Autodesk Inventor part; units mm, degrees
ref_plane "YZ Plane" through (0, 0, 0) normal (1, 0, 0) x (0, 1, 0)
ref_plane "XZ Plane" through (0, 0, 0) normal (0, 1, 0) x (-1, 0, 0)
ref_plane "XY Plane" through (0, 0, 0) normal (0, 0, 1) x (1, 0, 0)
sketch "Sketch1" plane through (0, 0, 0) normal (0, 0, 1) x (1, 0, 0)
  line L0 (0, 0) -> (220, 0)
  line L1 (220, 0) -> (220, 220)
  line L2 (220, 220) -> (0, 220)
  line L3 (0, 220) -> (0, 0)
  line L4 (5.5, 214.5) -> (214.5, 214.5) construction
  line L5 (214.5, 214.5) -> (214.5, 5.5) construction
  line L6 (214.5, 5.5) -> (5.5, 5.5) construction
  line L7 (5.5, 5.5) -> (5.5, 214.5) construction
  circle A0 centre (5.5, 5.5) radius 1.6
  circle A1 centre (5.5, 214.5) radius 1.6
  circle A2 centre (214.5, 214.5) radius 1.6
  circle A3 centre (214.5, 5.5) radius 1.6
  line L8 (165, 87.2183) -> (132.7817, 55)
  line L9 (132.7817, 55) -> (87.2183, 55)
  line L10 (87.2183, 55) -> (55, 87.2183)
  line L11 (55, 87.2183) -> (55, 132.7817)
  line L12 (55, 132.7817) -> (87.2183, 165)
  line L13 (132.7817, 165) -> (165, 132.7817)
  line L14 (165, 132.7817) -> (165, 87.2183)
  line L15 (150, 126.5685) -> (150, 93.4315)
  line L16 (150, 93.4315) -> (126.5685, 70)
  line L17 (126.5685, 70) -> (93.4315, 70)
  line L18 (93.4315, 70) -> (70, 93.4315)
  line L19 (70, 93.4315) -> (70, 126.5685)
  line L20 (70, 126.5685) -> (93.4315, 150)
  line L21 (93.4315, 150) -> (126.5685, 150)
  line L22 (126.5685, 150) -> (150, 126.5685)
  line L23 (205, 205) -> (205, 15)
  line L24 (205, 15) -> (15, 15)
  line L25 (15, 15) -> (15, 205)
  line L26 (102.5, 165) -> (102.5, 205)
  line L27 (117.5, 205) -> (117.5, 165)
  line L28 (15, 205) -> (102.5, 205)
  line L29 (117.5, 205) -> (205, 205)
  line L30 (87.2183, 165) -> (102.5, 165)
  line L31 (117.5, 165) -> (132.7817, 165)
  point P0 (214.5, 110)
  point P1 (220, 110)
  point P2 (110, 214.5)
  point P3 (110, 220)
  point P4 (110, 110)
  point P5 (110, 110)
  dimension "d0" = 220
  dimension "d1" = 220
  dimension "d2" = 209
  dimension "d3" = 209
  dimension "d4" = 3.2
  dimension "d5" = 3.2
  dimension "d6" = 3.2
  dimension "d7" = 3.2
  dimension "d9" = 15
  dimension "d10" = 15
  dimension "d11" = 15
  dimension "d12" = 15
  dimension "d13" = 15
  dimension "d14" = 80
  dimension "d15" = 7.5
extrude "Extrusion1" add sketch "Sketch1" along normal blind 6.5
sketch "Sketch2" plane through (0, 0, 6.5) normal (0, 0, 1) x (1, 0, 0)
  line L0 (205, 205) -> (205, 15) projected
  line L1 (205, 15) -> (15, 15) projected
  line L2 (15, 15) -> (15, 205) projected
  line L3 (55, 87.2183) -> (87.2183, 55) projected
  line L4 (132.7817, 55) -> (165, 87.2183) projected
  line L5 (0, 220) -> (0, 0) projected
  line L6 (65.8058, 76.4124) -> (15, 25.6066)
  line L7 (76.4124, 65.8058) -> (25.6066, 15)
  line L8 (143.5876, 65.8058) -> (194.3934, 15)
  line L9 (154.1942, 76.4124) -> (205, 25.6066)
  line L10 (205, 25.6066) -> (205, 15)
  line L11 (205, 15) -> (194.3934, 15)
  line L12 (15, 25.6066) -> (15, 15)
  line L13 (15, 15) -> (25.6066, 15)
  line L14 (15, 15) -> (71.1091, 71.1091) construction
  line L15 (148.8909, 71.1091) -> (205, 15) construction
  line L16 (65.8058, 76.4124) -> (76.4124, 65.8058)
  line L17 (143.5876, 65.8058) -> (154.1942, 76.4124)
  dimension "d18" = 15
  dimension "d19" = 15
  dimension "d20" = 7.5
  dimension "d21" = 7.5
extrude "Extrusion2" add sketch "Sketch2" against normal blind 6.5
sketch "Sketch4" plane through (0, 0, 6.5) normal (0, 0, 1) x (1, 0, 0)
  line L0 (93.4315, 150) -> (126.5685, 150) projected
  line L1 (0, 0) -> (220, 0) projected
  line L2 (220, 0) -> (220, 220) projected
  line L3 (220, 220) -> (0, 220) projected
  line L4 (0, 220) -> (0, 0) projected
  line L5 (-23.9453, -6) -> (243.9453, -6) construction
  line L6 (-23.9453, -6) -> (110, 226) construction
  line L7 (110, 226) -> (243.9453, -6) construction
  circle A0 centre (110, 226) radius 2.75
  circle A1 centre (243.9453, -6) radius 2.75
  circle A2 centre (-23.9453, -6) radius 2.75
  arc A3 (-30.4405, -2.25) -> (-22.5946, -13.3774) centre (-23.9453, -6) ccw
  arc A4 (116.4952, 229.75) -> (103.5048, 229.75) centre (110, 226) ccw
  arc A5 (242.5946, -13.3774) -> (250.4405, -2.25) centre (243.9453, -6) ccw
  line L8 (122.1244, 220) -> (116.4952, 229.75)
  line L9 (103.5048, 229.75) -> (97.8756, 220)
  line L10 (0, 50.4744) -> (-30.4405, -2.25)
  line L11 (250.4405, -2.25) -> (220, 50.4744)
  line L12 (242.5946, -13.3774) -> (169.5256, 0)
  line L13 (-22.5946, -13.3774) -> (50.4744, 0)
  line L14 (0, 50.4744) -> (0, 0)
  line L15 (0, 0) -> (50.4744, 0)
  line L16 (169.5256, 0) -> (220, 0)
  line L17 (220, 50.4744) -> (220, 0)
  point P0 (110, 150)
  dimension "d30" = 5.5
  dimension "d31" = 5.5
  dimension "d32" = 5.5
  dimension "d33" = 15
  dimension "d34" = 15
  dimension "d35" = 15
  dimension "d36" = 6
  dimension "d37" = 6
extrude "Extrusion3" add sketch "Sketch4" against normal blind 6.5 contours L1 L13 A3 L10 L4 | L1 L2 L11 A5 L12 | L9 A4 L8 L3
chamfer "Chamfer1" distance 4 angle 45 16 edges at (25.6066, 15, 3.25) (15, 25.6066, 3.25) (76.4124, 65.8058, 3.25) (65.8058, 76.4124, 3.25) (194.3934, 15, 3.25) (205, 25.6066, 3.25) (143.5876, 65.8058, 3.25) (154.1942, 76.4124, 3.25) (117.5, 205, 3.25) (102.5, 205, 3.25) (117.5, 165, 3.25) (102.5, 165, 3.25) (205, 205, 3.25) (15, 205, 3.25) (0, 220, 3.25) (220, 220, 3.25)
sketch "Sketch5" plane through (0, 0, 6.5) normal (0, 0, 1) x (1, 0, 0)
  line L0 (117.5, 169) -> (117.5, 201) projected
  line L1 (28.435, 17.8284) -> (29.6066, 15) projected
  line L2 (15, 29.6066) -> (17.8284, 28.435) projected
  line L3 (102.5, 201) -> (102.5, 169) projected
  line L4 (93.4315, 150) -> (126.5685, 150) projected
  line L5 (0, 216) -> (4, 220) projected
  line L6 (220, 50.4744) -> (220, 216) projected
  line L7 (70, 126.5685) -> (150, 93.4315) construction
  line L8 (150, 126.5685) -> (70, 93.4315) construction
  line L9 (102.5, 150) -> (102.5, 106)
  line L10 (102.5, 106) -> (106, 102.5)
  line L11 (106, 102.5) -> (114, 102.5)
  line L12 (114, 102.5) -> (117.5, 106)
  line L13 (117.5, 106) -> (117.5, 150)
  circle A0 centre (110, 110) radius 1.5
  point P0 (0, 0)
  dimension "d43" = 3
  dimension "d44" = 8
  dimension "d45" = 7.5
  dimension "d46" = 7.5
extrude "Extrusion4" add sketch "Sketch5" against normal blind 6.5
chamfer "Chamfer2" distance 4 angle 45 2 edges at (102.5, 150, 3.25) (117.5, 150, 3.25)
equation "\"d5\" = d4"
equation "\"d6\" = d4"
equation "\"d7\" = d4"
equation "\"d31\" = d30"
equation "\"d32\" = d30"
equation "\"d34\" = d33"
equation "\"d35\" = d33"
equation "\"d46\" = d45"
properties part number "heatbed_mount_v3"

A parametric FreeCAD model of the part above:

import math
import FreeCAD as App
import Part
import Sketcher
from FreeCAD import Vector
Q = App.Units.Quantity


def edges_at(feature, points):
    """Names of the edges that pass closest to the given points."""
    edges = feature.Shape.Edges
    near = lambda p: min(range(len(edges)), key=lambda i: edges[i].distToShape(Part.Vertex(*p))[0])
    return sorted({f"Edge{near(p) + 1}" for p in points})


def add_polygon(sketch, points):
    """Adds a closed chain of lines whose ends are joined by coincident constraints."""
    first, n = sketch.GeometryCount, len(points)
    for a, b in zip(points, points[1:] + points[:1]):
        sketch.addGeometry(Part.LineSegment(App.Vector(*a, 0), App.Vector(*b, 0)), False)
    for i in range(n):
        sketch.addConstraint(Sketcher.Constraint("Coincident", first + i, 2, first + (i + 1) % n, 1))

doc = App.newDocument("Part")
params = doc.addObject("Spreadsheet::Sheet", "Params")
for row, (alias, value) in enumerate([
    ("sketch1_diameter", "3.2 mm"),
    ("sketch1_width", "220 mm"),
    ("sketch1_height", "40 mm"),
    ("pad1_length", "6.5 mm"),
    ("sketch2_length", "15 mm"),
    ("pad2_length", "6.5 mm"),
    ("sketch3_diameter", "5.5 mm"),
    ("sketch3_radius", "7.5 mm"),
    ("pad3_length", "6.5 mm"),
    ("chamfer_size", "4 mm"),
    ("sketch4_diameter", "3 mm"),
    ("sketch4_width", "8 mm"),
    ("sketch4_height", "44 mm"),
    ("pad4_length", "6.5 mm"),
    ("chamfer2_size", "4 mm"),
], start=1):
    params.set(f"A{row}", alias)
    params.set(f"B{row}", "=" + value)
    params.setAlias(f"B{row}", alias)

body = doc.addObject("PartDesign::Body", "Body")

# Sketch on XY plane
sketch1 = doc.addObject("Sketcher::SketchObject", "Sketch")
body.addObject(sketch1)
sketch1.AttachmentSupport = (doc.XY_Plane, [""])
sketch1.MapMode = "FlatFace"
add_polygon(sketch1, [(0, 220), (0, 0), (220, 0), (220, 220)])  # lines 0-3
sketch1.addGeometry(Part.Circle(Vector(5.5, 5.5, 0), Vector(0, 0, 1), 1.6), False)  # 4
sketch1.addGeometry(Part.Circle(Vector(214.5, 5.5, 0), Vector(0, 0, 1), 1.6), False)  # 5
sketch1.addGeometry(Part.Circle(Vector(5.5, 214.5, 0), Vector(0, 0, 1), 1.6), False)  # 6
add_polygon(sketch1, [(126.6, 150), (150, 126.6), (150, 93.4), (126.6, 70), (93.4, 70), (70, 93.4), (70, 126.6), (93.4, 150)])  # lines 7-14
add_polygon(sketch1, [(132.8, 55), (165, 87.2), (165, 132.8), (132.8, 165), (117.5, 165), (117.5, 205), (205, 205), (205, 15), (15, 15), (15, 205), (102.5, 205), (102.5, 165), (87.2, 165), (55, 132.8), (55, 87.2), (87.2, 55)])  # lines 15-30
sketch1.addGeometry(Part.Circle(Vector(214.5, 214.5, 0), Vector(0, 0, 1), 1.6), False)  # 31
sketch1.addConstraint([
    Sketcher.Constraint("Vertical", 0),
    Sketcher.Constraint("Horizontal", 1),
    Sketcher.Constraint("Vertical", 2),
    Sketcher.Constraint("Horizontal", 3),
    Sketcher.Constraint("Vertical", 8),
    Sketcher.Constraint("Horizontal", 10),
    Sketcher.Constraint("Vertical", 12),
    Sketcher.Constraint("Horizontal", 14),
    Sketcher.Constraint("Vertical", 16),
    Sketcher.Constraint("Horizontal", 18),
    Sketcher.Constraint("Vertical", 19),
    Sketcher.Constraint("Horizontal", 20),
    Sketcher.Constraint("Vertical", 21),
    Sketcher.Constraint("Horizontal", 22),
    Sketcher.Constraint("Vertical", 23),
    Sketcher.Constraint("Horizontal", 24),
    Sketcher.Constraint("Vertical", 25),
    Sketcher.Constraint("Horizontal", 26),
    Sketcher.Constraint("Vertical", 28),
    Sketcher.Constraint("Horizontal", 30),
    Sketcher.Constraint("Coincident", 0, 2, -1, 1),
    Sketcher.Constraint("Equal", 4, 5),
    Sketcher.Constraint("Equal", 5, 6),
    Sketcher.Constraint("Equal", 6, 31),
    Sketcher.Constraint("Perpendicular", 7, 9),
    Sketcher.Constraint("Perpendicular", 9, 11),
    Sketcher.Constraint("Perpendicular", 11, 13),
    Sketcher.Constraint("Parallel", 13, 15),
    Sketcher.Constraint("Perpendicular", 15, 17),
    Sketcher.Constraint("Perpendicular", 17, 27),
    Sketcher.Constraint("Perpendicular", 27, 29),
    Sketcher.Constraint("Horizontal", 4, 3, 5, 3),
    Sketcher.Constraint("Horizontal", 6, 3, 31, 3),
    Sketcher.Constraint("Horizontal", 8, 2, 11, 2),
    Sketcher.Constraint("Horizontal", 7, 2, 12, 2),
    Sketcher.Constraint("Horizontal", 20, 2, 23, 2),
    Sketcher.Constraint("Horizontal", 18, 2, 25, 2),
    Sketcher.Constraint("Horizontal", 16, 2, 27, 2),
    Sketcher.Constraint("Horizontal", 15, 2, 28, 2),
    Sketcher.Constraint("Vertical", 4, 3, 6, 3),
    Sketcher.Constraint("Vertical", 5, 3, 31, 3),
    Sketcher.Constraint("Vertical", 10, 2, 13, 2),
    Sketcher.Constraint("Vertical", 9, 2, 14, 2),
    Sketcher.Constraint("Vertical", 26, 2, 29, 2),
    Sketcher.Constraint("Equal", 20, 24),
    Sketcher.Constraint("Equal", 18, 26),
    Sketcher.Constraint("Equal", 3, 0),
    Sketcher.Constraint("Equal", 14, 8),
    Sketcher.Constraint("Equal", 30, 16),
    Sketcher.Constraint("Equal", 22, 21),
    Sketcher.Constraint("Diameter", 4, Q("3.2 mm")),
    Sketcher.Constraint("DistanceX", 1, 1, 1, 2, Q("220 mm")),
    Sketcher.Constraint("DistanceY", -1, 1, 21, 2, Q("15 mm")),
    Sketcher.Constraint("DistanceX", -1, 1, 22, 2, Q("15 mm")),
    Sketcher.Constraint("DistanceX", 4, 3, 5, 3, Q("209 mm")),
    Sketcher.Constraint("DistanceY", 4, 3, 6, 3, Q("209 mm")),
    Sketcher.Constraint("DistanceX", 11, 2, 8, 2, Q("80 mm")),
    Sketcher.Constraint("DistanceX", 8, 2, 15, 2, Q("15 mm")),
    Sketcher.Constraint("DistanceY", 14, 2, 17, 2, Q("15 mm")),
    Sketcher.Constraint("DistanceX", 20, 2, 2, 2, Q("15 mm")),
    Sketcher.Constraint("DistanceX", 24, 2, 19, 2, Q("15 mm")),
    Sketcher.Constraint("DistanceX", 27, 2, 12, 2, Q("15 mm")),
    Sketcher.Constraint("DistanceY", 19, 1, 19, 2, Q("40 mm")),
    Sketcher.Constraint("DistanceX", -1, 1, 4, 3, Q("5.5 mm")),
    Sketcher.Constraint("DistanceY", -1, 1, 4, 3, Q("5.5 mm")),
    Sketcher.Constraint("DistanceX", 10, 2, 10, 1, Q("33.137 mm")),
    Sketcher.Constraint("DistanceX", 18, 2, 18, 1, Q("15.2817 mm")),
])
sketch1.setExpression("Constraints[78]", "Params.sketch1_diameter")
sketch1.setExpression("Constraints[79]", "Params.sketch1_width")
sketch1.setExpression("Constraints[90]", "Params.sketch1_height")
pad1 = doc.addObject("PartDesign::Pad", "Pad")
body.addObject(pad1)
pad1.Profile = sketch1
pad1.setExpression("Length", "Params.pad1_length")

# Sketch on XY plane
sketch2 = doc.addObject("Sketcher::SketchObject", "Sketch001")
body.addObject(sketch2)
sketch2.AttachmentSupport = (doc.XY_Plane, [""])
sketch2.MapMode = "FlatFace"
sketch2.AttachmentOffset = App.Placement(Vector(0, 0, 6.5), App.Rotation())
add_polygon(sketch2, [(15, 15), (26, 15), (76, 66), (66, 76), (15, 26)])  # lines 0-4
add_polygon(sketch2, [(205, 15), (205, 26), (154, 76), (144, 66), (194, 15)])  # lines 5-9
sketch2.addConstraint([
    Sketcher.Constraint("Horizontal", 0),
    Sketcher.Constraint("Vertical", 4),
    Sketcher.Constraint("Vertical", 5),
    Sketcher.Constraint("Horizontal", 9),
    Sketcher.Constraint("Perpendicular", 1, 2),
    Sketcher.Constraint("Perpendicular", 2, 3),
    Sketcher.Constraint("Perpendicular", 3, 6),
    Sketcher.Constraint("Perpendicular", 6, 7),
    Sketcher.Constraint("Perpendicular", 7, 8),
    Sketcher.Constraint("Horizontal", 3, 2, 5, 2),
    Sketcher.Constraint("Horizontal", 2, 2, 6, 2),
    Sketcher.Constraint("Horizontal", 1, 2, 7, 2),
    Sketcher.Constraint("Horizontal", 4, 2, 8, 2),
    Sketcher.Constraint("Equal", 0, 9),
    Sketcher.Constraint("Equal", 9, 4),
    Sketcher.Constraint("Distance", 2, Q("15 mm")),
    Sketcher.Constraint("DistanceY", -1, 1, 0, 2, Q("15 mm")),
    Sketcher.Constraint("DistanceX", -1, 1, 3, 2, Q("15 mm")),
    Sketcher.Constraint("DistanceX", -1, 1, 5, 2, Q("205 mm")),
    Sketcher.Constraint("DistanceX", 0, 2, 7, 2, Q("117.981 mm")),
])
sketch2.setExpression("Constraints[25]", "Params.sketch2_length")
pad2 = doc.addObject("PartDesign::Pad", "Pad001")
body.addObject(pad2)
pad2.Profile = sketch2
pad2.setExpression("Length", "Params.pad2_length")
pad2.Reversed = True

# Sketch on XY plane
sketch3 = doc.addObject("Sketcher::SketchObject", "Sketch002")
body.addObject(sketch3)
sketch3.AttachmentSupport = (doc.XY_Plane, [""])
sketch3.MapMode = "FlatFace"
sketch3.AttachmentOffset = App.Placement(Vector(0, 0, 6.5), App.Rotation())
sketch3.addGeometry([
    Part.LineSegment(Vector(50.5, 0, 0), Vector(0, 0, 0)),  # 0
    Part.LineSegment(Vector(0, 0, 0), Vector(0, 50.5, 0)),  # 1
    Part.LineSegment(Vector(0, 50.5, 0), Vector(-30.4, -2.2, 0)),  # 2
    Part.ArcOfCircle(Part.Circle(Vector(-23.9, -6, 0), Vector(0, 0, 1), 7.5), math.radians(150), math.radians(280)),  # 3
    Part.LineSegment(Vector(-22.6, -13.4, 0), Vector(50.5, 0, 0)),  # 4
    Part.Circle(Vector(-23.9, -6, 0), Vector(0, 0, 1), 2.8),  # 5
    Part.LineSegment(Vector(220, 0, 0), Vector(169.5, 0, 0)),  # 6
    Part.LineSegment(Vector(169.5, 0, 0), Vector(242.6, -13.4, 0)),  # 7
    Part.ArcOfCircle(Part.Circle(Vector(243.9, -6, 0), Vector(0, 0, 1), 7.5), math.radians(-100), math.radians(30)),  # 8
    Part.LineSegment(Vector(250.4, -2.2, 0), Vector(220, 50.5, 0)),  # 9
    Part.LineSegment(Vector(220, 50.5, 0), Vector(220, 0, 0)),  # 10
    Part.Circle(Vector(243.9, -6, 0), Vector(0, 0, 1), 2.8),  # 11
    Part.LineSegment(Vector(103.5, 229.8, 0), Vector(97.9, 220, 0)),  # 12
    Part.LineSegment(Vector(97.9, 220, 0), Vector(122.1, 220, 0)),  # 13
    Part.LineSegment(Vector(122.1, 220, 0), Vector(116.5, 229.8, 0)),  # 14
    Part.ArcOfCircle(Part.Circle(Vector(110, 226, 0), Vector(0, 0, 1), 7.5), math.radians(30), math.radians(150)),  # 15
    Part.Circle(Vector(110, 226, 0), Vector(0, 0, 1), 2.8),  # 16
], False)
sketch3.addConstraint([
    Sketcher.Constraint("Coincident", 0, 2, 1, 1),
    Sketcher.Constraint("Coincident", 1, 2, 2, 1),
    Sketcher.Constraint("Tangent", 2, 2, 3, 1),
    Sketcher.Constraint("Tangent", 3, 2, 4, 1),
    Sketcher.Constraint("Coincident", 4, 2, 0, 1),
    Sketcher.Constraint("Coincident", 6, 2, 7, 1),
    Sketcher.Constraint("Tangent", 7, 2, 8, 1),
    Sketcher.Constraint("Tangent", 8, 2, 9, 1),
    Sketcher.Constraint("Coincident", 9, 2, 10, 1),
    Sketcher.Constraint("Coincident", 10, 2, 6, 1),
    Sketcher.Constraint("Coincident", 12, 2, 13, 1),
    Sketcher.Constraint("Coincident", 13, 2, 14, 1),
    Sketcher.Constraint("Tangent", 14, 2, 15, 1),
    Sketcher.Constraint("Tangent", 15, 2, 12, 1),
    Sketcher.Constraint("Horizontal", 0),
    Sketcher.Constraint("Vertical", 1),
    Sketcher.Constraint("Horizontal", 6),
    Sketcher.Constraint("Vertical", 10),
    Sketcher.Constraint("Horizontal", 13),
    Sketcher.Constraint("Coincident", 0, 2, -1, 1),
    Sketcher.Constraint("Coincident", 5, 3, 3, 3),
    Sketcher.Constraint("Coincident", 11, 3, 8, 3),
    Sketcher.Constraint("Coincident", 16, 3, 15, 3),
    Sketcher.Constraint("Equal", 3, 8),
    Sketcher.Constraint("Equal", 5, 11),
    Sketcher.Constraint("Equal", 8, 15),
    Sketcher.Constraint("Equal", 11, 16),
    Sketcher.Constraint("PointOnObject", 6, 2, -1),
    Sketcher.Constraint("Parallel", 2, 12),
    Sketcher.Constraint("Parallel", 9, 14),
    Sketcher.Constraint("Horizontal", 5, 3, 8, 3),
    Sketcher.Constraint("Horizontal", 2, 2, 8, 2),
    Sketcher.Constraint("Horizontal", 1, 2, 9, 2),
    Sketcher.Constraint("Equal", 0, 6),
    Sketcher.Constraint("Equal", 6, 1),
    Sketcher.Constraint("Diameter", 5, Q("5.5 mm")),
    Sketcher.Constraint("Radius", 3, Q("7.5 mm")),
    Sketcher.Constraint("DistanceY", 3, 3, -1, 1, Q("6 mm")),
    Sketcher.Constraint("DistanceY", 12, 2, 15, 3, Q("6 mm")),
    Sketcher.Constraint("Angle", 2, Q("-120 deg")),
    Sketcher.Constraint("DistanceX", -1, 1, 15, 3, Q("110 mm")),
    Sketcher.Constraint("DistanceY", -1, 1, 15, 3, Q("226 mm")),
    Sketcher.Constraint("DistanceX", -1, 1, 9, 2, Q("220 mm")),
    Sketcher.Constraint("Distance", 2, Q("60.881 mm")),
])
sketch3.setExpression("Constraints[35]", "Params.sketch3_diameter")
sketch3.setExpression("Constraints[36]", "Params.sketch3_radius")
pad3 = doc.addObject("PartDesign::Pad", "Pad002")
body.addObject(pad3)
pad3.Profile = sketch3
pad3.setExpression("Length", "Params.pad3_length")
pad3.Reversed = True
doc.recompute()

chamfer = doc.addObject("PartDesign::Chamfer", "Chamfer")
body.addObject(chamfer)
chamfer.Base = (pad3, edges_at(pad3, [
    (25.607, 15, 3.25),
    (15, 25.607, 3.25),
    (76.412, 65.806, 3.25),
    (65.806, 76.412, 3.25),
    (194.393, 15, 3.25),
    (205, 25.607, 3.25),
    (143.588, 65.806, 3.25),
    (154.194, 76.412, 3.25),
    (117.5, 205, 3.25),
    (102.5, 205, 3.25),
    (117.5, 165, 3.25),
    (102.5, 165, 3.25),
    (205, 205, 3.25),
    (15, 205, 3.25),
    (0, 220, 3.25),
    (220, 220, 3.25),
]))
chamfer.setExpression("Size", "Params.chamfer_size")

# Sketch on XY plane
sketch4 = doc.addObject("Sketcher::SketchObject", "Sketch003")
body.addObject(sketch4)
sketch4.AttachmentSupport = (doc.XY_Plane, [""])
sketch4.MapMode = "FlatFace"
sketch4.AttachmentOffset = App.Placement(Vector(0, 0, 6.5), App.Rotation())
add_polygon(sketch4, [(117.5, 150), (102.5, 150), (102.5, 106), (106, 102.5), (114, 102.5), (117.5, 106)])  # lines 0-5
sketch4.addGeometry(Part.Circle(Vector(110, 110, 0), Vector(0, 0, 1), 1.5), False)  # 6
sketch4.addConstraint([
    Sketcher.Constraint("Horizontal", 0),
    Sketcher.Constraint("Vertical", 1),
    Sketcher.Constraint("Horizontal", 3),
    Sketcher.Constraint("Vertical", 5),
    Sketcher.Constraint("Perpendicular", 2, 4),
    Sketcher.Constraint("Horizontal", 1, 2, 4, 2),
    Sketcher.Constraint("Equal", 2, 4),
    Sketcher.Constraint("Diameter", 6, Q("3 mm")),
    Sketcher.Constraint("DistanceX", 3, 1, 3, 2, Q("8 mm")),
    Sketcher.Constraint("DistanceX", 0, 2, 6, 3, Q("7.5 mm")),
    Sketcher.Constraint("DistanceY", 2, 2, 6, 3, Q("7.5 mm")),
    Sketcher.Constraint("DistanceX", 6, 3, 4, 2, Q("7.5 mm")),
    Sketcher.Constraint("DistanceY", 1, 2, 1, 1, Q("44 mm")),
    Sketcher.Constraint("DistanceX", -1, 1, 6, 3, Q("110 mm")),
    Sketcher.Constraint("DistanceY", -1, 1, 6, 3, Q("110 mm")),
])
sketch4.setExpression("Constraints[13]", "Params.sketch4_diameter")
sketch4.setExpression("Constraints[14]", "Params.sketch4_width")
sketch4.setExpression("Constraints[18]", "Params.sketch4_height")
pad4 = doc.addObject("PartDesign::Pad", "Pad003")
body.addObject(pad4)
pad4.Profile = sketch4
pad4.setExpression("Length", "Params.pad4_length")
pad4.Reversed = True
doc.recompute()

chamfer2 = doc.addObject("PartDesign::Chamfer", "Chamfer001")
body.addObject(chamfer2)
chamfer2.Base = (pad4, edges_at(pad4, [(102.5, 150, 3.25), (117.5, 150, 3.25)]))
chamfer2.setExpression("Size", "Params.chamfer2_size")

doc.recompute()
